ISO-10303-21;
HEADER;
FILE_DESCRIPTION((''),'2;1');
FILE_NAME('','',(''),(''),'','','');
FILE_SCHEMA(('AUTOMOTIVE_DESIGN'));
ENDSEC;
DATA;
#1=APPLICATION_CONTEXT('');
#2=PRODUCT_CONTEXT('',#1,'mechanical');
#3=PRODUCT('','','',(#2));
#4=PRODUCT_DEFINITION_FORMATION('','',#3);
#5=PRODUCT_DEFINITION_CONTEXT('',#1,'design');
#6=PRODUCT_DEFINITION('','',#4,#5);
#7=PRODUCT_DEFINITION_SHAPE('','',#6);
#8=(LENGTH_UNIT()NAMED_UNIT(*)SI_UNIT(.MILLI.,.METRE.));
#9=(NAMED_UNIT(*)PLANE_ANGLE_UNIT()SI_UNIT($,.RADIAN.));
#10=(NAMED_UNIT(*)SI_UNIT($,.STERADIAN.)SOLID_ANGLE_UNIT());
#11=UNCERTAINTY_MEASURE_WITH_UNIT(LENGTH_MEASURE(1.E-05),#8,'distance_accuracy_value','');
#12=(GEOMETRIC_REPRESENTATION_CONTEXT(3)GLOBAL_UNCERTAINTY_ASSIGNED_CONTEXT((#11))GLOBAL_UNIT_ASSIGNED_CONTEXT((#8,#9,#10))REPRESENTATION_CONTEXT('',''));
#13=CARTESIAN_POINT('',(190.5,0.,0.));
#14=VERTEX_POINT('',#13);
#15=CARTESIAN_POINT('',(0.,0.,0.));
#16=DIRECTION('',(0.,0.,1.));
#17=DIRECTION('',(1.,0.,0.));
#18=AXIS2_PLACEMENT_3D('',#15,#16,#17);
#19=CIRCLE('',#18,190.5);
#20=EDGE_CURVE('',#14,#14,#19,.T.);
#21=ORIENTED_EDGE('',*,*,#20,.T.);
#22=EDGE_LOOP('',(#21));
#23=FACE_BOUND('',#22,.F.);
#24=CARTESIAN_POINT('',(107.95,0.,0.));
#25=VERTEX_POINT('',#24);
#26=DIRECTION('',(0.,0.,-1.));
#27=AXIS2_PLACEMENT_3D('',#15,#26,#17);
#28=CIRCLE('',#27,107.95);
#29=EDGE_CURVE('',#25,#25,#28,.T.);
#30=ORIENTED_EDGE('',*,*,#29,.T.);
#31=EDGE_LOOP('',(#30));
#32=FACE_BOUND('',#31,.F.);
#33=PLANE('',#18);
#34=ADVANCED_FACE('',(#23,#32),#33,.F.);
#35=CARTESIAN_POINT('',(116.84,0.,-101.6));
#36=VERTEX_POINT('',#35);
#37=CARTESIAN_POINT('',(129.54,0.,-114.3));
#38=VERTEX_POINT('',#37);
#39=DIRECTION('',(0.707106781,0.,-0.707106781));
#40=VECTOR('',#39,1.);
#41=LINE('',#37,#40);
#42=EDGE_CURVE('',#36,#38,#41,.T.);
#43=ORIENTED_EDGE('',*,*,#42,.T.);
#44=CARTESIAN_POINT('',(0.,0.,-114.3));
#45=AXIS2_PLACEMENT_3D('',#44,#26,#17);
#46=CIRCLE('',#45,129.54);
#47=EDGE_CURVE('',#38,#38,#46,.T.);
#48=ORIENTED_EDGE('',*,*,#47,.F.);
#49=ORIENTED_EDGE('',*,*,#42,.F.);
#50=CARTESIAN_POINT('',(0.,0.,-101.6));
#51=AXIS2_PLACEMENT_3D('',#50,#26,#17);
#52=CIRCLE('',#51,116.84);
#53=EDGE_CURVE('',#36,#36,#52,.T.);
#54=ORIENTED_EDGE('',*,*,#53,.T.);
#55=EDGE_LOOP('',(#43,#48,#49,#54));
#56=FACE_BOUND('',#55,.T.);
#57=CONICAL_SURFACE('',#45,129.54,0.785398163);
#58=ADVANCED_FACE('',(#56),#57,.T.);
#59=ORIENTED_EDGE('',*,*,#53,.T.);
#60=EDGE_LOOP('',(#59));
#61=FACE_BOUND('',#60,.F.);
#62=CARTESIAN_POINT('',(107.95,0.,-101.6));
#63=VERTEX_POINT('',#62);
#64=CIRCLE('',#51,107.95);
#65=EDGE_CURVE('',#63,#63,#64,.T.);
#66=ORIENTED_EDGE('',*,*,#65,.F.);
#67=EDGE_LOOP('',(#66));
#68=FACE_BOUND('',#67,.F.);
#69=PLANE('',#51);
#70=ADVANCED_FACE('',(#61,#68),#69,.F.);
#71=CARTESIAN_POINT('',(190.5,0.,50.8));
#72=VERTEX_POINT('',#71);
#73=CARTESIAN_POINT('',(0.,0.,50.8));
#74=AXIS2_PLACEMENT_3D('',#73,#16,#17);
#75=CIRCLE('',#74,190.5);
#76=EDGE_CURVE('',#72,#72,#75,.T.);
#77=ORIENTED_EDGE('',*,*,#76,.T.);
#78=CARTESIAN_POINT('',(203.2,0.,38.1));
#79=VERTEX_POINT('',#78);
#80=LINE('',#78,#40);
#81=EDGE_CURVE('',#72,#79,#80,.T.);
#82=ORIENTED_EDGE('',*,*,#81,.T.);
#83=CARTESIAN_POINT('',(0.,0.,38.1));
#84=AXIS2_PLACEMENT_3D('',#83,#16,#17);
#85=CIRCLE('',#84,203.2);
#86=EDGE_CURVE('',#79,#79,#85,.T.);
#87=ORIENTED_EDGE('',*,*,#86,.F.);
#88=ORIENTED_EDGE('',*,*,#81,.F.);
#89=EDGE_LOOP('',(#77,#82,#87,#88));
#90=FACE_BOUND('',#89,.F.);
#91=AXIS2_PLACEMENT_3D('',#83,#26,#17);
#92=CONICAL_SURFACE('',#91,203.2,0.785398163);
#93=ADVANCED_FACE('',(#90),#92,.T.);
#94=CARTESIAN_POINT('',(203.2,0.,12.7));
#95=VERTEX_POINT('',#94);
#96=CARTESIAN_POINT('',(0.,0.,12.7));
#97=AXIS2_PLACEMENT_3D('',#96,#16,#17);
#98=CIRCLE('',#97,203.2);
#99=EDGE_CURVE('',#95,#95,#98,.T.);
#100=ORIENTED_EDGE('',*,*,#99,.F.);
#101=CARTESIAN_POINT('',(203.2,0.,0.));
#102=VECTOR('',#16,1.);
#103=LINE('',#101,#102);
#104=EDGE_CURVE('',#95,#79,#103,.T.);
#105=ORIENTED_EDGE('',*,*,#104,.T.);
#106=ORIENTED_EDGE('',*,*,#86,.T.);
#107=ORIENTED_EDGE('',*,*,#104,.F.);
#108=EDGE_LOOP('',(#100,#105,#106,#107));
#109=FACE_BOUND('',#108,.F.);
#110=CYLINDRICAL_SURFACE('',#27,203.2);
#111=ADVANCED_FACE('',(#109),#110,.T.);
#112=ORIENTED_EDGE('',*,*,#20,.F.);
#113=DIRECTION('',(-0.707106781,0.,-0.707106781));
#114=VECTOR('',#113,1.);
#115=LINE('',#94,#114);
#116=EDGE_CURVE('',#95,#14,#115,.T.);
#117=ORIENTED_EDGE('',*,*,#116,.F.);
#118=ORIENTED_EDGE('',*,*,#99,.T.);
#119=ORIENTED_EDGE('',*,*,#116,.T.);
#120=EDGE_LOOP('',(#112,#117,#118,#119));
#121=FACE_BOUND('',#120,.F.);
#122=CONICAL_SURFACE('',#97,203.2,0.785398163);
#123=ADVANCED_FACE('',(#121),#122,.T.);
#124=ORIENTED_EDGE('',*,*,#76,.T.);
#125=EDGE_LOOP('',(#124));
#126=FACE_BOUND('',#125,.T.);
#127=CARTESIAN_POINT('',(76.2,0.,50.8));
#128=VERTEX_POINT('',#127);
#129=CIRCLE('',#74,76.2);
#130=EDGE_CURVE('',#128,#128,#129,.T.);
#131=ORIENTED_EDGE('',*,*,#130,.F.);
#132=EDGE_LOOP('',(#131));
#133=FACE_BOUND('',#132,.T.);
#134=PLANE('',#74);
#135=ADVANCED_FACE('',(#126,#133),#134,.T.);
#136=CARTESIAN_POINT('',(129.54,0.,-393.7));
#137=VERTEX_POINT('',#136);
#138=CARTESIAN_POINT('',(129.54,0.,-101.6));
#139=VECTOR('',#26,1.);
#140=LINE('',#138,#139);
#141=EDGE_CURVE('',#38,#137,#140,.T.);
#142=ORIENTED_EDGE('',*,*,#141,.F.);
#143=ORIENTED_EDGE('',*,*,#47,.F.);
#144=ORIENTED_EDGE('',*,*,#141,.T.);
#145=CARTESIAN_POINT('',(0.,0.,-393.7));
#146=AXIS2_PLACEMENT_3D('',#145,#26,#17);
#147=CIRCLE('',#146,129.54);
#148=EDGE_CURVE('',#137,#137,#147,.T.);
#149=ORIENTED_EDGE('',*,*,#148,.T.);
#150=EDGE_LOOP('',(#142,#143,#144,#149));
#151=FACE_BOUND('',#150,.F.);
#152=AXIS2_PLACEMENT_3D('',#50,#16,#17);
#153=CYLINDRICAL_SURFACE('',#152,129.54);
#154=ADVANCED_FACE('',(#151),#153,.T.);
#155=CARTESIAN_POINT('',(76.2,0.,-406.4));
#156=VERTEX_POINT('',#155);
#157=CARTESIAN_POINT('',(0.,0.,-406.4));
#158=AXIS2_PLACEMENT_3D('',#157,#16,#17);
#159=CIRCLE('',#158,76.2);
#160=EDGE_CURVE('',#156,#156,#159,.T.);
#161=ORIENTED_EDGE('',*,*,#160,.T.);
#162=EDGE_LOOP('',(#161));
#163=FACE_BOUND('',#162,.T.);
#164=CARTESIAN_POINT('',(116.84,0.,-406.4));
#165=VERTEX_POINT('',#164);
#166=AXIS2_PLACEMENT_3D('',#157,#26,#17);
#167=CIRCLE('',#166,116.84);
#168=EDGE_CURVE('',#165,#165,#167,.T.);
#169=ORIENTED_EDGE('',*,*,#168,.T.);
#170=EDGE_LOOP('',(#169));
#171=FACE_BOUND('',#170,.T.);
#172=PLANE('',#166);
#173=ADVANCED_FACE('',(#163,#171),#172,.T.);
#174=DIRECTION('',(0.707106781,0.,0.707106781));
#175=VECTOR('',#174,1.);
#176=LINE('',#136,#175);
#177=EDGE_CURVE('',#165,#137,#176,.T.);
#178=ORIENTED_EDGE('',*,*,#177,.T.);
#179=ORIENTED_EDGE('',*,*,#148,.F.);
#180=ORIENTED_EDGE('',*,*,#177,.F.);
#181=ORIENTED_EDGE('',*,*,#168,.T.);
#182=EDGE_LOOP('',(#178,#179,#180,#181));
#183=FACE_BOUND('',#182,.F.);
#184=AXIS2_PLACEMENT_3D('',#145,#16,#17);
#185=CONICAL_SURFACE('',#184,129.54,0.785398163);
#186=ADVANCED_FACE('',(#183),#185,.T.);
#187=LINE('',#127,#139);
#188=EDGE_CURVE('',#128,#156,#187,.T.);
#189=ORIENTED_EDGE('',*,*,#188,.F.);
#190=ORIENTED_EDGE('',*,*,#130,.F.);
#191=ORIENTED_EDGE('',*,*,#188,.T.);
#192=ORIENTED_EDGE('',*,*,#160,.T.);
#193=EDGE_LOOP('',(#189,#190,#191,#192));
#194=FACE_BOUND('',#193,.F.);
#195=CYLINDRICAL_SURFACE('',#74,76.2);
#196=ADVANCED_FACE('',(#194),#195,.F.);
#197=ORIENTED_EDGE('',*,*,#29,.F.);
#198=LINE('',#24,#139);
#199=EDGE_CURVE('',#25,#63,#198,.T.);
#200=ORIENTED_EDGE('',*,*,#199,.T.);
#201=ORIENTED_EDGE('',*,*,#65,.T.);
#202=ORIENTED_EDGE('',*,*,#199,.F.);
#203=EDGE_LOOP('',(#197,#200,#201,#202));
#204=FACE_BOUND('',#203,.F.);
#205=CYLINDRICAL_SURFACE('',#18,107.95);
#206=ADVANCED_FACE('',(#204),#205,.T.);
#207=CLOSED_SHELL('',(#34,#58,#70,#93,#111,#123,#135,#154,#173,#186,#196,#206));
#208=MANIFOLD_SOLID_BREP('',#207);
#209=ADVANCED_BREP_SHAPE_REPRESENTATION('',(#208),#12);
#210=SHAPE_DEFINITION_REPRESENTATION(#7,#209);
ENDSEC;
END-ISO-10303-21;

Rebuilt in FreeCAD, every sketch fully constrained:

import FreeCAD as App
import Part
import Sketcher

V = App.Vector
Q = App.Units.Quantity


def edges_at(feature, points):
    """Names of the edges that pass closest to the given points."""
    edges = feature.Shape.Edges
    near = lambda p: min(range(len(edges)), key=lambda i: edges[i].distToShape(Part.Vertex(*p))[0])
    return sorted({f"Edge{near(p) + 1}" for p in points})

doc = App.newDocument("Part")
body = doc.addObject("PartDesign::Body", "Body")

# Sketch on XY plane
sketch1 = doc.addObject("Sketcher::SketchObject", "Sketch")
body.addObject(sketch1)
sketch1.AttachmentSupport = (doc.XY_Plane, [""])
sketch1.MapMode = "FlatFace"
sketch1.addGeometry(Part.Circle(V(0, 0, 0), V(0, 0, 1), 203.2), False)
sketch1.addConstraint(Sketcher.Constraint("Coincident", 0, 3, -1, 1))
sketch1.addConstraint(Sketcher.Constraint("Diameter", 0, Q("16 in")))
pad1 = doc.addObject("PartDesign::Pad", "Pad")
body.addObject(pad1)
pad1.Profile = sketch1
pad1.Length = Q("2 in")

# Sketch on XY plane
sketch2 = doc.addObject("Sketcher::SketchObject", "Sketch001")
body.addObject(sketch2)
sketch2.AttachmentSupport = (doc.XY_Plane, [""])
sketch2.MapMode = "FlatFace"
sketch2.addGeometry(Part.Circle(V(0, 0, 0), V(0, 0, 1), 107.95), False)
sketch2.addConstraint(Sketcher.Constraint("Coincident", 0, 3, -1, 1))
sketch2.addConstraint(Sketcher.Constraint("Diameter", 0, Q("8.5 in")))
pad2 = doc.addObject("PartDesign::Pad", "Pad001")
body.addObject(pad2)
pad2.Profile = sketch2
pad2.Length = Q("4 in")
pad2.Reversed = True

# Sketch on XY plane
sketch3 = doc.addObject("Sketcher::SketchObject", "Sketch002")
body.addObject(sketch3)
sketch3.AttachmentSupport = (doc.XY_Plane, [""])
sketch3.MapMode = "FlatFace"
sketch3.AttachmentOffset = App.Placement(V(0, 0, -4 * 25.4), App.Rotation())
sketch3.addGeometry(Part.Circle(V(0, 0, 0), V(0, 0, 1), 129.54), False)
sketch3.addConstraint(Sketcher.Constraint("Coincident", 0, 3, -1, 1))
sketch3.addConstraint(Sketcher.Constraint("Diameter", 0, Q("10.2 in")))
pad3 = doc.addObject("PartDesign::Pad", "Pad002")
body.addObject(pad3)
pad3.Profile = sketch3
pad3.Length = Q("12 in")
pad3.Reversed = True

# Sketch on XY plane
sketch4 = doc.addObject("Sketcher::SketchObject", "Sketch003")
body.addObject(sketch4)
sketch4.AttachmentSupport = (doc.XY_Plane, [""])
sketch4.MapMode = "FlatFace"
sketch4.AttachmentOffset = App.Placement(V(0, 0, 2 * 25.4), App.Rotation())
sketch4.addGeometry(Part.Circle(V(0, 0, 0), V(0, 0, 1), 76.2), False)
sketch4.addConstraint(Sketcher.Constraint("Coincident", 0, 3, -1, 1))
sketch4.addConstraint(Sketcher.Constraint("Diameter", 0, Q("6 in")))
pocket1 = doc.addObject("PartDesign::Pocket", "Pocket")
body.addObject(pocket1)
pocket1.Profile = sketch4
pocket1.Length = Q("18 in")
doc.recompute()

chamfer = doc.addObject("PartDesign::Chamfer", "Chamfer")
body.addObject(chamfer)
chamfer.Base = (pocket1, edges_at(pocket1, [(-203.2, 0, 50.8)]))
chamfer.Size = Q("0.5 in")
doc.recompute()

chamfer2 = doc.addObject("PartDesign::Chamfer", "Chamfer001")
body.addObject(chamfer2)
chamfer2.Base = (chamfer, edges_at(chamfer, [(-203.2, 0, 0)]))
chamfer2.Size = Q("0.5 in")
doc.recompute()

chamfer3 = doc.addObject("PartDesign::Chamfer", "Chamfer002")
body.addObject(chamfer3)
chamfer3.Base = (chamfer2, edges_at(chamfer2, [(-129.54, 0, -101.6), (-129.54, 0, -406.4)]))
chamfer3.Size = Q("0.5 in")

doc.recompute()
